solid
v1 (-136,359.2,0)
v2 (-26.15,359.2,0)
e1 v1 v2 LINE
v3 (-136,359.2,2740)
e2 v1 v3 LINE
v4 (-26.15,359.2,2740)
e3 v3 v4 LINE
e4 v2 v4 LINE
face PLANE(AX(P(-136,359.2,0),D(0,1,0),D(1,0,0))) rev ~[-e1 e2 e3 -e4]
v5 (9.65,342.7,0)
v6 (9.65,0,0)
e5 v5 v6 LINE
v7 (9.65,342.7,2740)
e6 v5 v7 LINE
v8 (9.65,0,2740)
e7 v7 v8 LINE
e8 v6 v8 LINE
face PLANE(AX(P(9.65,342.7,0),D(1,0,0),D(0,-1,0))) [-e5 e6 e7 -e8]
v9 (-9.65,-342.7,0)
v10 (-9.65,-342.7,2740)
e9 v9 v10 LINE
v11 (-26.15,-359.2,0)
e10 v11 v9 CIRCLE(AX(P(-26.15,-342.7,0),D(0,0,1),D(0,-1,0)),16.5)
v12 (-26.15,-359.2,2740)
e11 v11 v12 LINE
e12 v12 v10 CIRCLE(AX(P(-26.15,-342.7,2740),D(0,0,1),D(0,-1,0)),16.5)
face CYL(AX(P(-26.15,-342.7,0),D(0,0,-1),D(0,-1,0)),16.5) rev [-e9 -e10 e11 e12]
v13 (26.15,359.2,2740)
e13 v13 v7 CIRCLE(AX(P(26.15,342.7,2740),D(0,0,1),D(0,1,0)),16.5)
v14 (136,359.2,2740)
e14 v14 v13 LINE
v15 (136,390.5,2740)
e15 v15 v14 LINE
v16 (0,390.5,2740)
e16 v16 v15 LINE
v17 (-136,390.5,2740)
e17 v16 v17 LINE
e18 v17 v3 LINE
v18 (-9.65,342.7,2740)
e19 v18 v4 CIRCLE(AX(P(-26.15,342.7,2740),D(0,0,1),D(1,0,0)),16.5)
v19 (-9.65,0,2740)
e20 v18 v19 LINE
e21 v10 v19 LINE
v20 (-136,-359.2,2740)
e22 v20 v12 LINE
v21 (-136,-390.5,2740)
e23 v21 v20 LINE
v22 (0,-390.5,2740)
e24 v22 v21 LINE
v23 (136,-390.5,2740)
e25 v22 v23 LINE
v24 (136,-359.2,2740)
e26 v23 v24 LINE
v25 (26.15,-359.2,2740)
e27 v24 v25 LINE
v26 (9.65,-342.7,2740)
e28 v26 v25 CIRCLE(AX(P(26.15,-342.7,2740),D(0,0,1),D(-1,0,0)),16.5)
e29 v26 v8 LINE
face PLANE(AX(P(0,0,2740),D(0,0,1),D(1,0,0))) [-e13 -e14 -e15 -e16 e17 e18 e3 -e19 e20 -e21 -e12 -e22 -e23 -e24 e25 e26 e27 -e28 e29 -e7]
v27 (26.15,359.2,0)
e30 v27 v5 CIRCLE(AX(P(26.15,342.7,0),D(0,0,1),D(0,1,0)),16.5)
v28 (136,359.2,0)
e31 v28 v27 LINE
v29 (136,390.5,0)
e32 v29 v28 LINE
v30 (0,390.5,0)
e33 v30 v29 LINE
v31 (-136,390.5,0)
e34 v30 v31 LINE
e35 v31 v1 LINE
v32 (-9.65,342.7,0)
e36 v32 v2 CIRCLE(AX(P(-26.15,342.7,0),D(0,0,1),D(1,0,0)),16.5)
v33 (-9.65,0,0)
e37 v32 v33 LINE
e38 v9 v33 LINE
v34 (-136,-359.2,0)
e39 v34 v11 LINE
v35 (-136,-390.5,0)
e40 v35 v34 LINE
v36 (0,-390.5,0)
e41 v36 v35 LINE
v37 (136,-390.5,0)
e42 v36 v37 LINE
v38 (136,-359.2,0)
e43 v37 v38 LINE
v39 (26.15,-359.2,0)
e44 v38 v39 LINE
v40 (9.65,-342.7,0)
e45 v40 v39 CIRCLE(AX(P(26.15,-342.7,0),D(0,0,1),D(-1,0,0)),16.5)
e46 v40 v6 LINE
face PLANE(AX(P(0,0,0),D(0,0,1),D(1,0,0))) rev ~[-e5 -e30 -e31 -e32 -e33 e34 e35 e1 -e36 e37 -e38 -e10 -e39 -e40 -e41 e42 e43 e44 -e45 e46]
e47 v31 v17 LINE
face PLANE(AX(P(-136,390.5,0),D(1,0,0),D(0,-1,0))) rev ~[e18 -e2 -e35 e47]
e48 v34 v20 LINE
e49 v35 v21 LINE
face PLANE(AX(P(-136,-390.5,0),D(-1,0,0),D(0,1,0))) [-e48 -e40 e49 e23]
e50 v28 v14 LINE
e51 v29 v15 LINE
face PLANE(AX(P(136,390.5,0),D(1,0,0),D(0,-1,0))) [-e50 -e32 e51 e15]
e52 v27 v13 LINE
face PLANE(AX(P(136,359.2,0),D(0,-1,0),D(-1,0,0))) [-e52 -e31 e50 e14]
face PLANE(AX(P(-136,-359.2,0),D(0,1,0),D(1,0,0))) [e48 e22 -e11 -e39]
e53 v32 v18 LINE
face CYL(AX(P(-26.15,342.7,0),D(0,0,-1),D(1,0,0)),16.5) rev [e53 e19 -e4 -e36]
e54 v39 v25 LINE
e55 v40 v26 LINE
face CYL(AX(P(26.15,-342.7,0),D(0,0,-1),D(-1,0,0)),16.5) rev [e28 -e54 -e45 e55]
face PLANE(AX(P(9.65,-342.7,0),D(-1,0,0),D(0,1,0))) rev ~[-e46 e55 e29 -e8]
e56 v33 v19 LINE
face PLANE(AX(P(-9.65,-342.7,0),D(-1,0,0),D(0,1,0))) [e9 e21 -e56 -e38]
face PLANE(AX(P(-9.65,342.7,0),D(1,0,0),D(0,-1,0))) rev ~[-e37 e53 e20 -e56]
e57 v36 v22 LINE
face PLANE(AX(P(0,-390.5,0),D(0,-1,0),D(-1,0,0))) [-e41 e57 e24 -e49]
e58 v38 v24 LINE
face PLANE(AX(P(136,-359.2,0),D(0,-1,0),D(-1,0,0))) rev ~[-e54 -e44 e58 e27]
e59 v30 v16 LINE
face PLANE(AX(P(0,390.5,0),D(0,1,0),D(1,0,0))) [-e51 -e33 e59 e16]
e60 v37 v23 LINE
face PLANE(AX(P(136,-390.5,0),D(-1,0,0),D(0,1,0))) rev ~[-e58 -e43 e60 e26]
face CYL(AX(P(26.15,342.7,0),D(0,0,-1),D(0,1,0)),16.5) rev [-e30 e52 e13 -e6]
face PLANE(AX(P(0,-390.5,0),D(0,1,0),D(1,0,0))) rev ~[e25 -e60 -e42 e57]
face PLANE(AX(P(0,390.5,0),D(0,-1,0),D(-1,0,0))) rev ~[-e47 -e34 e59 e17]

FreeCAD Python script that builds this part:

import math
import FreeCAD as App
import Part
import Sketcher
from FreeCAD import Vector
Q = App.Units.Quantity

doc = App.newDocument("Part")
body = doc.addObject("PartDesign::Body", "Body")

# Sketch on XY plane
sketch1 = doc.addObject("Sketcher::SketchObject", "Sketch")
body.addObject(sketch1)
sketch1.AttachmentSupport = (doc.XY_Plane, [""])
sketch1.MapMode = "FlatFace"
sketch1.addGeometry([
    Part.LineSegment(Vector(-136, -359, 0), Vector(-136, -390, 0)),  # 0
    Part.LineSegment(Vector(-136, -390, 0), Vector(136, -390, 0)),  # 1
    Part.LineSegment(Vector(136, -390, 0), Vector(136, -359, 0)),  # 2
    Part.LineSegment(Vector(136, -359, 0), Vector(26, -359, 0)),  # 3
    Part.ArcOfCircle(Part.Circle(Vector(26, -343, 0), Vector(0, 0, 1), 16), math.radians(180), math.radians(270)),  # 4
    Part.LineSegment(Vector(10, -343, 0), Vector(10, 343, 0)),  # 5
    Part.ArcOfCircle(Part.Circle(Vector(26, 343, 0), Vector(0, 0, 1), 16), math.radians(90), math.radians(180)),  # 6
    Part.LineSegment(Vector(26, 359, 0), Vector(136, 359, 0)),  # 7
    Part.LineSegment(Vector(136, 359, 0), Vector(136, 390, 0)),  # 8
    Part.LineSegment(Vector(136, 390, 0), Vector(-136, 390, 0)),  # 9
    Part.LineSegment(Vector(-136, 390, 0), Vector(-136, 359, 0)),  # 10
    Part.LineSegment(Vector(-136, 359, 0), Vector(-26, 359, 0)),  # 11
    Part.ArcOfCircle(Part.Circle(Vector(-26, 343, 0), Vector(0, 0, 1), 16), math.radians(0), math.radians(90)),  # 12
    Part.LineSegment(Vector(-10, 343, 0), Vector(-10, -343, 0)),  # 13
    Part.ArcOfCircle(Part.Circle(Vector(-26, -343, 0), Vector(0, 0, 1), 16), math.radians(-90), math.radians(0)),  # 14
    Part.LineSegment(Vector(-26, -359, 0), Vector(-136, -359, 0)),  # 15
], False)
sketch1.addConstraint([
    Sketcher.Constraint("Coincident", 0, 2, 1, 1),
    Sketcher.Constraint("Coincident", 1, 2, 2, 1),
    Sketcher.Constraint("Coincident", 2, 2, 3, 1),
    Sketcher.Constraint("Tangent", 3, 2, 4, 2),
    Sketcher.Constraint("Tangent", 4, 1, 5, 1),
    Sketcher.Constraint("Tangent", 5, 2, 6, 2),
    Sketcher.Constraint("Tangent", 6, 1, 7, 1),
    Sketcher.Constraint("Coincident", 7, 2, 8, 1),
    Sketcher.Constraint("Coincident", 8, 2, 9, 1),
    Sketcher.Constraint("Coincident", 9, 2, 10, 1),
    Sketcher.Constraint("Coincident", 10, 2, 11, 1),
    Sketcher.Constraint("Tangent", 11, 2, 12, 2),
    Sketcher.Constraint("Tangent", 12, 1, 13, 1),
    Sketcher.Constraint("Tangent", 13, 2, 14, 2),
    Sketcher.Constraint("Tangent", 14, 1, 15, 1),
    Sketcher.Constraint("Coincident", 15, 2, 0, 1),
    Sketcher.Constraint("Vertical", 0),
    Sketcher.Constraint("Horizontal", 1),
    Sketcher.Constraint("Vertical", 2),
    Sketcher.Constraint("Horizontal", 3),
    Sketcher.Constraint("Vertical", 5),
    Sketcher.Constraint("Horizontal", 7),
    Sketcher.Constraint("Vertical", 8),
    Sketcher.Constraint("Horizontal", 9),
    Sketcher.Constraint("Vertical", 10),
    Sketcher.Constraint("Horizontal", 11),
    Sketcher.Constraint("Vertical", 13),
    Sketcher.Constraint("Horizontal", 15),
    Sketcher.Constraint("Equal", 4, 6),
    Sketcher.Constraint("Equal", 6, 12),
    Sketcher.Constraint("Equal", 12, 14),
    Sketcher.Constraint("Symmetric", 4, 3, 12, 3, -1, 1),
    Sketcher.Constraint("Symmetric", 0, 2, 8, 2, -1, 1),
    Sketcher.Constraint("Symmetric", 7, 2, 10, 2, -2),
    Sketcher.Constraint("Symmetric", 2, 2, 15, 2, -2),
    Sketcher.Constraint("Radius", 4, Q("16.5 mm")),
    Sketcher.Constraint("DistanceY", 0, 2, 0, 1, Q("31.3 mm")),
    Sketcher.Constraint("DistanceX", 0, 2, -1, 1, Q("136 mm")),
    Sketcher.Constraint("DistanceY", 0, 2, -1, 1, Q("390.5 mm")),
    Sketcher.Constraint("DistanceX", -1, 1, 4, 1, Q("9.65 mm")),
])
pad1 = doc.addObject("PartDesign::Pad", "Pad")
body.addObject(pad1)
pad1.Profile = sketch1
pad1.Length = 2740

doc.recompute()
